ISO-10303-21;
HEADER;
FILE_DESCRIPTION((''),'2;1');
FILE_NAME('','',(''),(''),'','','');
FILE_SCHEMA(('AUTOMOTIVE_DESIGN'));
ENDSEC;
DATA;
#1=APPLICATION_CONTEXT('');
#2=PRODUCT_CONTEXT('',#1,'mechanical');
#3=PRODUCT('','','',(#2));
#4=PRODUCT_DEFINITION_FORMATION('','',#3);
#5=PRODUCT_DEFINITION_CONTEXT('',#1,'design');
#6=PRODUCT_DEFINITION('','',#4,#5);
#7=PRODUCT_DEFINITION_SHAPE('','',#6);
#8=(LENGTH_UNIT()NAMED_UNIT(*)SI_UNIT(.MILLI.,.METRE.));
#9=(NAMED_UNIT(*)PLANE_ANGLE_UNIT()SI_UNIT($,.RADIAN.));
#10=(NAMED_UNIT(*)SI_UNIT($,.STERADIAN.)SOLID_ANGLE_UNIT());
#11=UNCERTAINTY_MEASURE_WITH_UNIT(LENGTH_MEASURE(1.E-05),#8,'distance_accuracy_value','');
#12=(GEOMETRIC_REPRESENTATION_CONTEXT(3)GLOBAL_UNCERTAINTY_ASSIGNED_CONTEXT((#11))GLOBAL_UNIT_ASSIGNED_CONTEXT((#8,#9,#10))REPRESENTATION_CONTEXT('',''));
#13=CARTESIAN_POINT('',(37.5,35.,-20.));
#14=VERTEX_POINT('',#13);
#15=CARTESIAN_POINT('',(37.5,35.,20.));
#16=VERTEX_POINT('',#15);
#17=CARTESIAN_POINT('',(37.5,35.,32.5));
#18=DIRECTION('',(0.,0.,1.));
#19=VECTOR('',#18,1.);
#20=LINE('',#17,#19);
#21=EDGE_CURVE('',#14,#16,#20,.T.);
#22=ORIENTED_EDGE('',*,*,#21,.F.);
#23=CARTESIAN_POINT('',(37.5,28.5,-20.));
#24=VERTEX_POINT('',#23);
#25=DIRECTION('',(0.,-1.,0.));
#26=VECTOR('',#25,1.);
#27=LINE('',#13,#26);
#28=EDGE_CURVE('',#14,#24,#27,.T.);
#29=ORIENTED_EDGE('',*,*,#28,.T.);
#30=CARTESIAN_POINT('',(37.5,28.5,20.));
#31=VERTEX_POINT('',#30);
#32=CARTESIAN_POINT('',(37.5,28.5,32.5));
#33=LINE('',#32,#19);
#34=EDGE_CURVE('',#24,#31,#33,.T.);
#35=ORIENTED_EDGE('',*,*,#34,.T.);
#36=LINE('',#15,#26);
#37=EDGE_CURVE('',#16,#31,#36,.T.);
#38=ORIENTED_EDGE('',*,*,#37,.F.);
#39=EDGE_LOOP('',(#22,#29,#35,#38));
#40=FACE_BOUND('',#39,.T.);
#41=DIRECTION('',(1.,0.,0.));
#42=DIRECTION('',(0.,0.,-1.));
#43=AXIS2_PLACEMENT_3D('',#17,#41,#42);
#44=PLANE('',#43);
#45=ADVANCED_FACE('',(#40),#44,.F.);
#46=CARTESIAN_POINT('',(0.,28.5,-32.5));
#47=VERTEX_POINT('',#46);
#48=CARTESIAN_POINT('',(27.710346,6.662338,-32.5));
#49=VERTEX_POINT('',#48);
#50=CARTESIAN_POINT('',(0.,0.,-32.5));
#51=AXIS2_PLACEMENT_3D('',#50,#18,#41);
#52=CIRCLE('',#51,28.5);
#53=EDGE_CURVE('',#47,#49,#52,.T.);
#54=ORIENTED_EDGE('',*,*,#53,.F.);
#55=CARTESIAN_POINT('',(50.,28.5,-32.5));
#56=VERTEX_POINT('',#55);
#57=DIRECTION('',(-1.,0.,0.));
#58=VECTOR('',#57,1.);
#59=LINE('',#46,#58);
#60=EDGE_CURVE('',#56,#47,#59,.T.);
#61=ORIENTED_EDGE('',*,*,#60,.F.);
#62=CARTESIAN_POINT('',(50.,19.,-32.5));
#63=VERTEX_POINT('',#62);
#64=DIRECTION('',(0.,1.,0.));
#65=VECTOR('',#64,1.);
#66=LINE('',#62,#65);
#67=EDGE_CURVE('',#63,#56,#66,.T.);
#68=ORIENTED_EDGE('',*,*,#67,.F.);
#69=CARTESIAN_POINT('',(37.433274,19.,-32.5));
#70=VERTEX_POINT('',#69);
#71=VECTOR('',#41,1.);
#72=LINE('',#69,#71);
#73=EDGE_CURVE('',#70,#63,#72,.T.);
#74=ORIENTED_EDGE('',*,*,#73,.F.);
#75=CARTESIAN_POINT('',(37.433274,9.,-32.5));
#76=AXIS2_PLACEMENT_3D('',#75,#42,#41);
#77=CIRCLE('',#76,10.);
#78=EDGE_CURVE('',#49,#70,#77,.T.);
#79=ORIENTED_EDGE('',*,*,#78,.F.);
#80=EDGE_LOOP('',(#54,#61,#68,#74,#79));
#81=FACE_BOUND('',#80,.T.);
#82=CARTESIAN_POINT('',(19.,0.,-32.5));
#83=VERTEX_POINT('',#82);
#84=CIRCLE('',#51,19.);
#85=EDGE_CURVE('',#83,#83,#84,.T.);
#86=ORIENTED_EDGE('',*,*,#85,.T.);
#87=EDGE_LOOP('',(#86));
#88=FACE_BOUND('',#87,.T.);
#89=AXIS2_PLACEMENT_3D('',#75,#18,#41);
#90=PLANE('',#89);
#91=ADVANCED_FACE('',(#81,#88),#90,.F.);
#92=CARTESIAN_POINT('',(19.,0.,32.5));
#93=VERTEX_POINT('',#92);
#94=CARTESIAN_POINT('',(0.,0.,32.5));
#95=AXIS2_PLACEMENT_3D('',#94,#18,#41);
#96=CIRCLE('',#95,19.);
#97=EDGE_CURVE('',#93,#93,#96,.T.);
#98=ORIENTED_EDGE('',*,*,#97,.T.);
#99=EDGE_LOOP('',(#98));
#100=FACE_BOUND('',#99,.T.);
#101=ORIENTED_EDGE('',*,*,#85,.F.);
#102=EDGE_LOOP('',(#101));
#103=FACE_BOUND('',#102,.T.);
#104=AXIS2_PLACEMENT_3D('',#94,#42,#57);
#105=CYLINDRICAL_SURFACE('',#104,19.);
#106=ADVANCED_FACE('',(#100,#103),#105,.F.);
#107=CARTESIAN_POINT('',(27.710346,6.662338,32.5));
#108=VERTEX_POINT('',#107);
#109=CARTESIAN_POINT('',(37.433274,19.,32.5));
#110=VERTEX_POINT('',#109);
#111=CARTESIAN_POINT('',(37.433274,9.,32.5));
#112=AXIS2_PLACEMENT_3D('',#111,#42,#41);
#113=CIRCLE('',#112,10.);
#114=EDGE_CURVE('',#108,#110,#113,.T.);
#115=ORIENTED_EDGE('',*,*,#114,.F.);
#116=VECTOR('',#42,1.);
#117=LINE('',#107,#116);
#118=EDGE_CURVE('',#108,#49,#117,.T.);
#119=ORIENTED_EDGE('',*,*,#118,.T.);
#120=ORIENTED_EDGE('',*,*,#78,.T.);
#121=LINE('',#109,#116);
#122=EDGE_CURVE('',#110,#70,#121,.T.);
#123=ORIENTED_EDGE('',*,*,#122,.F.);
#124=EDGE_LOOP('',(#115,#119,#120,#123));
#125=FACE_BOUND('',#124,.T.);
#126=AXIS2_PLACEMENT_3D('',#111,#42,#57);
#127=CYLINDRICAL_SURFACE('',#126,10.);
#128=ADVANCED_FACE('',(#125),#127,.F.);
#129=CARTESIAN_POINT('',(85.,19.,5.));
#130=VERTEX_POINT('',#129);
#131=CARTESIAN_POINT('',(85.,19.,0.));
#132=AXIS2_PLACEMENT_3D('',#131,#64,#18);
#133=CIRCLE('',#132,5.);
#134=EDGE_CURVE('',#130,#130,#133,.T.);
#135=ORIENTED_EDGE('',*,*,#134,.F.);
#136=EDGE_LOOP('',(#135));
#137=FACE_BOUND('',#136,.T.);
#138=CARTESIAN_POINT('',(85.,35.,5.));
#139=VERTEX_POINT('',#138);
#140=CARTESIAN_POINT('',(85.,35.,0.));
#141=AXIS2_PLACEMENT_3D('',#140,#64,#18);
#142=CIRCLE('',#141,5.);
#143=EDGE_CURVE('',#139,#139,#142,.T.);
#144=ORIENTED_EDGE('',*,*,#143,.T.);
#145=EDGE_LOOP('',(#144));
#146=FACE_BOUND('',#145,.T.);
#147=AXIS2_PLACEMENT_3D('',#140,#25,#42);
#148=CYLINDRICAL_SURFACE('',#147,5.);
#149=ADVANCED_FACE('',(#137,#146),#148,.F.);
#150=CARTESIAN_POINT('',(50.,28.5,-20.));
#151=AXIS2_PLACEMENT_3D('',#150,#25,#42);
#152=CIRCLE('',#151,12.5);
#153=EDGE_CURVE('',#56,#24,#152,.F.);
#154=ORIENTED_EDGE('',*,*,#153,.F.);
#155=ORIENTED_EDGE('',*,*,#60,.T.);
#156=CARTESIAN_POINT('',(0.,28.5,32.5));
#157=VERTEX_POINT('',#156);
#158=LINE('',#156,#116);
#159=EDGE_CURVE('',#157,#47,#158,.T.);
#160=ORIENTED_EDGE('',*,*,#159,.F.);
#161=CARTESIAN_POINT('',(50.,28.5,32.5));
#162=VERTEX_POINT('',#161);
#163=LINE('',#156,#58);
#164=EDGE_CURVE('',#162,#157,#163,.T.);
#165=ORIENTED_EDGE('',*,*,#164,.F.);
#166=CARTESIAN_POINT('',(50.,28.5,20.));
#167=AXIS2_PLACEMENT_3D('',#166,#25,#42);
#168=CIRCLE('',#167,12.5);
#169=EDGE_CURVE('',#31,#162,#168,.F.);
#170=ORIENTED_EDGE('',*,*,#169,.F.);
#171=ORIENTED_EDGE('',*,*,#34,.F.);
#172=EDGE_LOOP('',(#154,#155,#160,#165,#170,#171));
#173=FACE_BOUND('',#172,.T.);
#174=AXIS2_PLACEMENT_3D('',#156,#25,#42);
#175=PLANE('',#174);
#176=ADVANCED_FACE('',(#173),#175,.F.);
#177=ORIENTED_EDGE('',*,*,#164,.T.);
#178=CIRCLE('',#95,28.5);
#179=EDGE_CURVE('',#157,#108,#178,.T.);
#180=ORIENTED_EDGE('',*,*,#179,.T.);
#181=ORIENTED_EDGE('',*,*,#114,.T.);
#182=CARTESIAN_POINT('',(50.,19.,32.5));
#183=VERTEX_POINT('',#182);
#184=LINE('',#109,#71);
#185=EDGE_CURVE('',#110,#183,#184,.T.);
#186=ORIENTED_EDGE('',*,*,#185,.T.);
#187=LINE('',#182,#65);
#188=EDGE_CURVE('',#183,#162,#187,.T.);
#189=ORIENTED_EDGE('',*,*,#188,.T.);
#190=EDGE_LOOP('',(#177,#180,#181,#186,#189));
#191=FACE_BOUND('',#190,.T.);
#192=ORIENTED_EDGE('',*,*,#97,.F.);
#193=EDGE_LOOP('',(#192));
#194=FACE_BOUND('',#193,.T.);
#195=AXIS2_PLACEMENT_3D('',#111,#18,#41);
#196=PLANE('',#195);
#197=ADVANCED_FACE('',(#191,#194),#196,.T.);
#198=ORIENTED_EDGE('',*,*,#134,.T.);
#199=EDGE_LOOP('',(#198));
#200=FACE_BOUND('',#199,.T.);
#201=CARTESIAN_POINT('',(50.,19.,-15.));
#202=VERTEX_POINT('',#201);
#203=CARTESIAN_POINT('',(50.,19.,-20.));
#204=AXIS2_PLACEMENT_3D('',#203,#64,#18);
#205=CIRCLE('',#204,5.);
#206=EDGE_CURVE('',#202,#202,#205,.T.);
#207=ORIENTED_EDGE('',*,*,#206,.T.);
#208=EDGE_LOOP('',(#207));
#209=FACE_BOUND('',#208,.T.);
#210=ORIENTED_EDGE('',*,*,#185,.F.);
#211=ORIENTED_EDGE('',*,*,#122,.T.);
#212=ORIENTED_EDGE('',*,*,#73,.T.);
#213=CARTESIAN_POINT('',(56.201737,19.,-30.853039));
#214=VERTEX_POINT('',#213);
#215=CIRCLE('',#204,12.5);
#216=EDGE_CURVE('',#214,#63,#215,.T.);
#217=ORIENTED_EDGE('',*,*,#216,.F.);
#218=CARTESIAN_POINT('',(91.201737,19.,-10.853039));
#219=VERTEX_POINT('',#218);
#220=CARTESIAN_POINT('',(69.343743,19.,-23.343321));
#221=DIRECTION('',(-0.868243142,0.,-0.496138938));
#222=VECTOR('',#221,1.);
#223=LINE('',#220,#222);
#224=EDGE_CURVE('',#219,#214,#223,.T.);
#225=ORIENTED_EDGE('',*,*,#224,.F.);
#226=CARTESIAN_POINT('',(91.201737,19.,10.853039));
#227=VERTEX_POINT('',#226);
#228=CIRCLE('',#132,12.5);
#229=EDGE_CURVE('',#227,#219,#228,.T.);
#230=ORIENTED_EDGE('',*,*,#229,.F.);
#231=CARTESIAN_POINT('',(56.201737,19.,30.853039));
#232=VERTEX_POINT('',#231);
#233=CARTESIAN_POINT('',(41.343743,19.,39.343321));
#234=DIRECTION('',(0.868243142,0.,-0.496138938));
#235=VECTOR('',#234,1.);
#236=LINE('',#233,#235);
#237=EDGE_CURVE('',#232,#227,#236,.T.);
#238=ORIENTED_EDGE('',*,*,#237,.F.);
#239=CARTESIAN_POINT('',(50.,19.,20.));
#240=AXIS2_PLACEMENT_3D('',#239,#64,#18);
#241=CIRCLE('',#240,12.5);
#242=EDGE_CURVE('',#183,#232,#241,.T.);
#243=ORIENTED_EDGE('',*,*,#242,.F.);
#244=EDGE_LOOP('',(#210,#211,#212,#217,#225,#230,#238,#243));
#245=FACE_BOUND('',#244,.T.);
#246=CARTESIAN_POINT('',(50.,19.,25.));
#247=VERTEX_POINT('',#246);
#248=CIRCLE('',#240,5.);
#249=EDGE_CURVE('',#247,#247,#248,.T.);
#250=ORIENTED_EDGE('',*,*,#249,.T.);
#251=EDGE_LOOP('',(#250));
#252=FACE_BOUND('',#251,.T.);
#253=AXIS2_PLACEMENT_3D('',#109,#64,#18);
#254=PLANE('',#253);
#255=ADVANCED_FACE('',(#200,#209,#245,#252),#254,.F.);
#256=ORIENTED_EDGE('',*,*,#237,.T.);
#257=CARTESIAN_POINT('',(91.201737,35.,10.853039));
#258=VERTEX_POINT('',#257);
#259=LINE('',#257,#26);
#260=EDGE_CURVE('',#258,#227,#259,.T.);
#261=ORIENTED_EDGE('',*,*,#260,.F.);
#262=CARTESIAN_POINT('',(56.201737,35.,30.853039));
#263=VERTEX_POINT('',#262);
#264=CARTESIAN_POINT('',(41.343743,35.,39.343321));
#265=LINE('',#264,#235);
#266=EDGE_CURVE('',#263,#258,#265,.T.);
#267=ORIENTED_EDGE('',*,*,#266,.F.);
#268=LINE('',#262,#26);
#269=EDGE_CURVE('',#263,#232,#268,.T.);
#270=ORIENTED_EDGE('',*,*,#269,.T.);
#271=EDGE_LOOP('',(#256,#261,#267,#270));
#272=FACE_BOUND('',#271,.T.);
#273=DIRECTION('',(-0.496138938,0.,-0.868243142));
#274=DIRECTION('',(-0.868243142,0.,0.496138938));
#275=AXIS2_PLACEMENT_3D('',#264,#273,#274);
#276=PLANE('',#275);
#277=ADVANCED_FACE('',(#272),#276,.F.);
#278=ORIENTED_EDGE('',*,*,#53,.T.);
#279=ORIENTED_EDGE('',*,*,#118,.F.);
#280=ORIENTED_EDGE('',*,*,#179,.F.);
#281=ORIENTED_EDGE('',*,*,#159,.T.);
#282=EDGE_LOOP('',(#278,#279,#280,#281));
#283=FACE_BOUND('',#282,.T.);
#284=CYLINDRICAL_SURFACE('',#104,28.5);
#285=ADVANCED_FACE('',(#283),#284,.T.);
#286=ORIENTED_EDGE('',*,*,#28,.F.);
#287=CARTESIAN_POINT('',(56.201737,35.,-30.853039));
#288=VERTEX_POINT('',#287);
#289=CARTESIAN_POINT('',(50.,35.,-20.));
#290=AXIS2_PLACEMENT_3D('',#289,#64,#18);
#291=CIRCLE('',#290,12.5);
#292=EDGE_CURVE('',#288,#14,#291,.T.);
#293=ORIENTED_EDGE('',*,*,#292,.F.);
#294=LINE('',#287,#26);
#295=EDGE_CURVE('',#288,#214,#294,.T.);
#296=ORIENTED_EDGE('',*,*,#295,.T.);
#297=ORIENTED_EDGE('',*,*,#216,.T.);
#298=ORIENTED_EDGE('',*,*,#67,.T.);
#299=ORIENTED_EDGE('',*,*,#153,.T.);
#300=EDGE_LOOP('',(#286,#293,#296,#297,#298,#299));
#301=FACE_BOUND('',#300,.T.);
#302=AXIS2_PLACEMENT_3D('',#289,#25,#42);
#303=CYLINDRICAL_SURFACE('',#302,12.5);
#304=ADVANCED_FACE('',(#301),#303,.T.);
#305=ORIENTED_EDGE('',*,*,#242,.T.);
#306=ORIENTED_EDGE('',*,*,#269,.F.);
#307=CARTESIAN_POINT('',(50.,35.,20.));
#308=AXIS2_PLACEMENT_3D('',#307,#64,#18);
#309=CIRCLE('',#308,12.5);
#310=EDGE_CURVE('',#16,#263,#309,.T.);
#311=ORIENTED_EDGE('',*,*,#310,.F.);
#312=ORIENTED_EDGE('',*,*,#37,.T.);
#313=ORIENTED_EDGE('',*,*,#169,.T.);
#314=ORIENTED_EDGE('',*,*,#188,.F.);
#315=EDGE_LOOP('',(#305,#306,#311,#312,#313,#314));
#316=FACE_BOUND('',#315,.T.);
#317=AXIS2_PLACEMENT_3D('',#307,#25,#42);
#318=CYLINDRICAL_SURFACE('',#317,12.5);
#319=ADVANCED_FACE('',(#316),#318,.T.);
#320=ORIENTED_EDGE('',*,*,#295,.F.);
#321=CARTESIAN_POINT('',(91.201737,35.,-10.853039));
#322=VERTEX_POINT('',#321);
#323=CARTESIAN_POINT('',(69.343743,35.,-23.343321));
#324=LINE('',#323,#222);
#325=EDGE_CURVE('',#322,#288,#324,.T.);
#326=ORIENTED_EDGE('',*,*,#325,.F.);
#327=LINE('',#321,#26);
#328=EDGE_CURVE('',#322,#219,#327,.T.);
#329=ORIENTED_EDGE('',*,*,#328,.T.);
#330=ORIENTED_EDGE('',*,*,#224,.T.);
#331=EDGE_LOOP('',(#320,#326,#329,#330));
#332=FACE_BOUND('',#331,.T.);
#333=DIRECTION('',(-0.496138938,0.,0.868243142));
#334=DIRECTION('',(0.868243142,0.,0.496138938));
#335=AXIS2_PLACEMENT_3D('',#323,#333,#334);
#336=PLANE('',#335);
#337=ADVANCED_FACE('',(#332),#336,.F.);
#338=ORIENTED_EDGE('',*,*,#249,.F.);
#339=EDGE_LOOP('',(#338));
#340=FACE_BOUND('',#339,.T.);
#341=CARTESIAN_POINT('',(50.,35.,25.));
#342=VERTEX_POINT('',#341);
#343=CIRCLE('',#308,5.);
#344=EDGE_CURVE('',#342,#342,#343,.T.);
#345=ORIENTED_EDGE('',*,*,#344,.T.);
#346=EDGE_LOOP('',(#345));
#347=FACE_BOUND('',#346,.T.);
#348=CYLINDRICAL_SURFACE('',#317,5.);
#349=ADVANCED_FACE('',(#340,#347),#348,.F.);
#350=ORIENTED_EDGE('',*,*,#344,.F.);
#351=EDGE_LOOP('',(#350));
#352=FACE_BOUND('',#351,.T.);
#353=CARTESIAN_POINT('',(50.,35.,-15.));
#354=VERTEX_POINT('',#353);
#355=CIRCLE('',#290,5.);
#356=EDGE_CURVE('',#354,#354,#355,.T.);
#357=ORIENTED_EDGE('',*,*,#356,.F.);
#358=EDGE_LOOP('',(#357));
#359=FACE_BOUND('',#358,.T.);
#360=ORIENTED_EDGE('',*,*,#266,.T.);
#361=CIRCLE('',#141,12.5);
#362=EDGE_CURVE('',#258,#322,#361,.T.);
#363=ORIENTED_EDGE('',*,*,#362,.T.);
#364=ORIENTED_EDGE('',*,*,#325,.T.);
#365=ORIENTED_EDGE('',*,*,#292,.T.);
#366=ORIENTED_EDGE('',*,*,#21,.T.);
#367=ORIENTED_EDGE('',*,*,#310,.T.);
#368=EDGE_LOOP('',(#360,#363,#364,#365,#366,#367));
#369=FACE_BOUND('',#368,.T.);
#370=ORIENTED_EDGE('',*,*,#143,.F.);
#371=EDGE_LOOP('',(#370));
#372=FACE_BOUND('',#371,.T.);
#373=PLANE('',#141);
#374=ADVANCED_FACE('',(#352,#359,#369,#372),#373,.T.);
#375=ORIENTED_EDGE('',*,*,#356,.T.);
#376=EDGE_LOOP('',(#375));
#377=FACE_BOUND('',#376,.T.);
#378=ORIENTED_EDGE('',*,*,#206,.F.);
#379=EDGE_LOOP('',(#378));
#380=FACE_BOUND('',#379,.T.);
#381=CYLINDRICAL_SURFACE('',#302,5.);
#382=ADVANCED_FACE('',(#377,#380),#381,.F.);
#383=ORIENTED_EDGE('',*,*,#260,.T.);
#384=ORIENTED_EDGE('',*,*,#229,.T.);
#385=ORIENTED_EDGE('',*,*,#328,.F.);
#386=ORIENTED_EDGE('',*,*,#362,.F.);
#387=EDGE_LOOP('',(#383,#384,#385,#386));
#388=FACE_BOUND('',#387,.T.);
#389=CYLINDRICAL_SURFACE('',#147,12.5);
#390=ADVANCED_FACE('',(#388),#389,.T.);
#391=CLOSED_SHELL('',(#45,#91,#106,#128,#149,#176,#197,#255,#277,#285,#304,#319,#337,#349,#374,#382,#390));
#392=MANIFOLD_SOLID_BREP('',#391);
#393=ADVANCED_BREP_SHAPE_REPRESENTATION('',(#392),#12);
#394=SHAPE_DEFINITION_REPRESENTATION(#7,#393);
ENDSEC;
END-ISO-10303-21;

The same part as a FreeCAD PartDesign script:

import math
import FreeCAD as App
import Part
import Sketcher

V = App.Vector
Q = App.Units.Quantity

doc = App.newDocument("Part")
body = doc.addObject("PartDesign::Body", "Body")

# Sketch on XY plane
sketch1 = body.newObject("Sketcher::SketchObject", "Sketch")
sketch1.AttachmentSupport = (doc.getObject("XY_Plane"), [""])
sketch1.MapMode = "FlatFace"
sketch1.addGeometry([
    Part.LineSegment(V(37, 19, 0), V(50, 19, 0)),  # 0
    Part.LineSegment(V(50, 19, 0), V(50, 28, 0)),  # 1
    Part.LineSegment(V(50, 28, 0), V(0, 28, 0)),  # 2
    Part.ArcOfCircle(Part.Circle(V(0, 0, 0), V(0, 0, 1), 28), math.radians(90), math.radians(374)),  # 3
    Part.ArcOfCircle(Part.Circle(V(37, 9, 0), V(0, 0, 1), 10), math.radians(90), math.radians(194)),  # 4
    Part.Circle(V(0, 0, 0), V(0, 0, 1), 19),  # 5
], False)
sketch1.addConstraint([
    Sketcher.Constraint("Coincident", 0, 2, 1, 1),
    Sketcher.Constraint("Coincident", 1, 2, 2, 1),
    Sketcher.Constraint("Tangent", 2, 2, 3, 1),
    Sketcher.Constraint("Tangent", 3, 2, 4, 2),
    Sketcher.Constraint("Tangent", 4, 1, 0, 1),
    Sketcher.Constraint("Horizontal", 0),
    Sketcher.Constraint("Vertical", 1),
    Sketcher.Constraint("Horizontal", 2),
    Sketcher.Constraint("Coincident", 3, 3, -1, 1),
    Sketcher.Constraint("Coincident", 5, 3, -1, 1),
    Sketcher.Constraint("Diameter", 5, Q("38 mm")),
    Sketcher.Constraint("Radius", 4, Q("10 mm")),
    Sketcher.Constraint("Radius", 3, Q("28.5 mm")),
    Sketcher.Constraint("DistanceX", 2, 2, 2, 1, Q("50 mm")),
    Sketcher.Constraint("DistanceY", 1, 1, 1, 2, Q("9.5 mm")),
])
pad1 = body.newObject("PartDesign::Pad", "Pad")
pad1.Profile = sketch1
pad1.Length = 65
pad1.Midplane = True

# Sketch on XZ plane
sketch2 = body.newObject("Sketcher::SketchObject", "Sketch001")
sketch2.AttachmentSupport = (doc.getObject("XZ_Plane"), [""])
sketch2.MapMode = "FlatFace"
sketch2.AttachmentOffset = App.Placement(V(0, 0, -19), App.Rotation())
sketch2.addGeometry([
    Part.LineSegment(V(38, -20, 0), V(38, 20, 0)),  # 0
    Part.ArcOfCircle(Part.Circle(V(50, 20, 0), V(0, 0, 1), 12), math.radians(60), math.radians(180)),  # 1
    Part.LineSegment(V(56, 31, 0), V(91, 11, 0)),  # 2
    Part.ArcOfCircle(Part.Circle(V(85, 0, 0), V(0, 0, 1), 12), math.radians(-60), math.radians(60)),  # 3
    Part.LineSegment(V(91, -11, 0), V(56, -31, 0)),  # 4
    Part.ArcOfCircle(Part.Circle(V(50, -20, 0), V(0, 0, 1), 12), math.radians(180), math.radians(300)),  # 5
    Part.Circle(V(50, 20, 0), V(0, 0, 1), 5),  # 6
    Part.Circle(V(50, -20, 0), V(0, 0, 1), 5),  # 7
    Part.Circle(V(85, 0, 0), V(0, 0, 1), 5),  # 8
], False)
sketch2.addConstraint([
    Sketcher.Constraint("Tangent", 0, 2, 1, 2),
    Sketcher.Constraint("Tangent", 1, 1, 2, 1),
    Sketcher.Constraint("Tangent", 2, 2, 3, 2),
    Sketcher.Constraint("Tangent", 3, 1, 4, 1),
    Sketcher.Constraint("Tangent", 4, 2, 5, 2),
    Sketcher.Constraint("Tangent", 5, 1, 0, 1),
    Sketcher.Constraint("Vertical", 0),
    Sketcher.Constraint("Coincident", 6, 3, 1, 3),
    Sketcher.Constraint("Coincident", 7, 3, 5, 3),
    Sketcher.Constraint("Coincident", 8, 3, 3, 3),
    Sketcher.Constraint("Equal", 1, 3),
    Sketcher.Constraint("Equal", 3, 5),
    Sketcher.Constraint("Equal", 6, 7),
    Sketcher.Constraint("Equal", 7, 8),
    Sketcher.Constraint("Symmetric", 2, 2, 3, 1, -1),
    Sketcher.Constraint("Diameter", 6, Q("10 mm")),
    Sketcher.Constraint("Radius", 1, Q("12.5 mm")),
    Sketcher.Constraint("DistanceY", 0, 1, 0, 2, Q("40 mm")),
    Sketcher.Constraint("DistanceX", -1, 1, 1, 3, Q("50 mm")),
    Sketcher.Constraint("DistanceX", -1, 1, 3, 3, Q("85 mm")),
])
pad2 = body.newObject("PartDesign::Pad", "Pad001")
pad2.Profile = sketch2
pad2.Length = 16
pad2.Reversed = True

# Sketch on XZ plane
sketch3 = body.newObject("Sketcher::SketchObject", "Sketch002")
sketch3.AttachmentSupport = (doc.getObject("XZ_Plane"), [""])
sketch3.MapMode = "FlatFace"
sketch3.AttachmentOffset = App.Placement(V(0, 0, -19), App.Rotation())
sketch3.addGeometry([
    Part.Circle(V(50, 20, 0), V(0, 0, 1), 5),
    Part.Circle(V(85, 0, 0), V(0, 0, 1), 5),
    Part.Circle(V(50, -20, 0), V(0, 0, 1), 5),
], False)
sketch3.addConstraint([
    Sketcher.Constraint("Equal", 0, 1),
    Sketcher.Constraint("Equal", 1, 2),
    Sketcher.Constraint("Symmetric", 0, 3, 2, 3, -1),
    Sketcher.Constraint("PointOnObject", 1, 3, -1),
    Sketcher.Constraint("Diameter", 0, Q("10 mm")),
    Sketcher.Constraint("DistanceX", -1, 1, 0, 3, Q("50 mm")),
    Sketcher.Constraint("DistanceY", -1, 1, 0, 3, Q("20 mm")),
    Sketcher.Constraint("DistanceX", -1, 1, 1, 3, Q("85 mm")),
])
pocket1 = body.newObject("PartDesign::Pocket", "Pocket")
pocket1.Profile = sketch3
pocket1.Length = 16

doc.recompute()
